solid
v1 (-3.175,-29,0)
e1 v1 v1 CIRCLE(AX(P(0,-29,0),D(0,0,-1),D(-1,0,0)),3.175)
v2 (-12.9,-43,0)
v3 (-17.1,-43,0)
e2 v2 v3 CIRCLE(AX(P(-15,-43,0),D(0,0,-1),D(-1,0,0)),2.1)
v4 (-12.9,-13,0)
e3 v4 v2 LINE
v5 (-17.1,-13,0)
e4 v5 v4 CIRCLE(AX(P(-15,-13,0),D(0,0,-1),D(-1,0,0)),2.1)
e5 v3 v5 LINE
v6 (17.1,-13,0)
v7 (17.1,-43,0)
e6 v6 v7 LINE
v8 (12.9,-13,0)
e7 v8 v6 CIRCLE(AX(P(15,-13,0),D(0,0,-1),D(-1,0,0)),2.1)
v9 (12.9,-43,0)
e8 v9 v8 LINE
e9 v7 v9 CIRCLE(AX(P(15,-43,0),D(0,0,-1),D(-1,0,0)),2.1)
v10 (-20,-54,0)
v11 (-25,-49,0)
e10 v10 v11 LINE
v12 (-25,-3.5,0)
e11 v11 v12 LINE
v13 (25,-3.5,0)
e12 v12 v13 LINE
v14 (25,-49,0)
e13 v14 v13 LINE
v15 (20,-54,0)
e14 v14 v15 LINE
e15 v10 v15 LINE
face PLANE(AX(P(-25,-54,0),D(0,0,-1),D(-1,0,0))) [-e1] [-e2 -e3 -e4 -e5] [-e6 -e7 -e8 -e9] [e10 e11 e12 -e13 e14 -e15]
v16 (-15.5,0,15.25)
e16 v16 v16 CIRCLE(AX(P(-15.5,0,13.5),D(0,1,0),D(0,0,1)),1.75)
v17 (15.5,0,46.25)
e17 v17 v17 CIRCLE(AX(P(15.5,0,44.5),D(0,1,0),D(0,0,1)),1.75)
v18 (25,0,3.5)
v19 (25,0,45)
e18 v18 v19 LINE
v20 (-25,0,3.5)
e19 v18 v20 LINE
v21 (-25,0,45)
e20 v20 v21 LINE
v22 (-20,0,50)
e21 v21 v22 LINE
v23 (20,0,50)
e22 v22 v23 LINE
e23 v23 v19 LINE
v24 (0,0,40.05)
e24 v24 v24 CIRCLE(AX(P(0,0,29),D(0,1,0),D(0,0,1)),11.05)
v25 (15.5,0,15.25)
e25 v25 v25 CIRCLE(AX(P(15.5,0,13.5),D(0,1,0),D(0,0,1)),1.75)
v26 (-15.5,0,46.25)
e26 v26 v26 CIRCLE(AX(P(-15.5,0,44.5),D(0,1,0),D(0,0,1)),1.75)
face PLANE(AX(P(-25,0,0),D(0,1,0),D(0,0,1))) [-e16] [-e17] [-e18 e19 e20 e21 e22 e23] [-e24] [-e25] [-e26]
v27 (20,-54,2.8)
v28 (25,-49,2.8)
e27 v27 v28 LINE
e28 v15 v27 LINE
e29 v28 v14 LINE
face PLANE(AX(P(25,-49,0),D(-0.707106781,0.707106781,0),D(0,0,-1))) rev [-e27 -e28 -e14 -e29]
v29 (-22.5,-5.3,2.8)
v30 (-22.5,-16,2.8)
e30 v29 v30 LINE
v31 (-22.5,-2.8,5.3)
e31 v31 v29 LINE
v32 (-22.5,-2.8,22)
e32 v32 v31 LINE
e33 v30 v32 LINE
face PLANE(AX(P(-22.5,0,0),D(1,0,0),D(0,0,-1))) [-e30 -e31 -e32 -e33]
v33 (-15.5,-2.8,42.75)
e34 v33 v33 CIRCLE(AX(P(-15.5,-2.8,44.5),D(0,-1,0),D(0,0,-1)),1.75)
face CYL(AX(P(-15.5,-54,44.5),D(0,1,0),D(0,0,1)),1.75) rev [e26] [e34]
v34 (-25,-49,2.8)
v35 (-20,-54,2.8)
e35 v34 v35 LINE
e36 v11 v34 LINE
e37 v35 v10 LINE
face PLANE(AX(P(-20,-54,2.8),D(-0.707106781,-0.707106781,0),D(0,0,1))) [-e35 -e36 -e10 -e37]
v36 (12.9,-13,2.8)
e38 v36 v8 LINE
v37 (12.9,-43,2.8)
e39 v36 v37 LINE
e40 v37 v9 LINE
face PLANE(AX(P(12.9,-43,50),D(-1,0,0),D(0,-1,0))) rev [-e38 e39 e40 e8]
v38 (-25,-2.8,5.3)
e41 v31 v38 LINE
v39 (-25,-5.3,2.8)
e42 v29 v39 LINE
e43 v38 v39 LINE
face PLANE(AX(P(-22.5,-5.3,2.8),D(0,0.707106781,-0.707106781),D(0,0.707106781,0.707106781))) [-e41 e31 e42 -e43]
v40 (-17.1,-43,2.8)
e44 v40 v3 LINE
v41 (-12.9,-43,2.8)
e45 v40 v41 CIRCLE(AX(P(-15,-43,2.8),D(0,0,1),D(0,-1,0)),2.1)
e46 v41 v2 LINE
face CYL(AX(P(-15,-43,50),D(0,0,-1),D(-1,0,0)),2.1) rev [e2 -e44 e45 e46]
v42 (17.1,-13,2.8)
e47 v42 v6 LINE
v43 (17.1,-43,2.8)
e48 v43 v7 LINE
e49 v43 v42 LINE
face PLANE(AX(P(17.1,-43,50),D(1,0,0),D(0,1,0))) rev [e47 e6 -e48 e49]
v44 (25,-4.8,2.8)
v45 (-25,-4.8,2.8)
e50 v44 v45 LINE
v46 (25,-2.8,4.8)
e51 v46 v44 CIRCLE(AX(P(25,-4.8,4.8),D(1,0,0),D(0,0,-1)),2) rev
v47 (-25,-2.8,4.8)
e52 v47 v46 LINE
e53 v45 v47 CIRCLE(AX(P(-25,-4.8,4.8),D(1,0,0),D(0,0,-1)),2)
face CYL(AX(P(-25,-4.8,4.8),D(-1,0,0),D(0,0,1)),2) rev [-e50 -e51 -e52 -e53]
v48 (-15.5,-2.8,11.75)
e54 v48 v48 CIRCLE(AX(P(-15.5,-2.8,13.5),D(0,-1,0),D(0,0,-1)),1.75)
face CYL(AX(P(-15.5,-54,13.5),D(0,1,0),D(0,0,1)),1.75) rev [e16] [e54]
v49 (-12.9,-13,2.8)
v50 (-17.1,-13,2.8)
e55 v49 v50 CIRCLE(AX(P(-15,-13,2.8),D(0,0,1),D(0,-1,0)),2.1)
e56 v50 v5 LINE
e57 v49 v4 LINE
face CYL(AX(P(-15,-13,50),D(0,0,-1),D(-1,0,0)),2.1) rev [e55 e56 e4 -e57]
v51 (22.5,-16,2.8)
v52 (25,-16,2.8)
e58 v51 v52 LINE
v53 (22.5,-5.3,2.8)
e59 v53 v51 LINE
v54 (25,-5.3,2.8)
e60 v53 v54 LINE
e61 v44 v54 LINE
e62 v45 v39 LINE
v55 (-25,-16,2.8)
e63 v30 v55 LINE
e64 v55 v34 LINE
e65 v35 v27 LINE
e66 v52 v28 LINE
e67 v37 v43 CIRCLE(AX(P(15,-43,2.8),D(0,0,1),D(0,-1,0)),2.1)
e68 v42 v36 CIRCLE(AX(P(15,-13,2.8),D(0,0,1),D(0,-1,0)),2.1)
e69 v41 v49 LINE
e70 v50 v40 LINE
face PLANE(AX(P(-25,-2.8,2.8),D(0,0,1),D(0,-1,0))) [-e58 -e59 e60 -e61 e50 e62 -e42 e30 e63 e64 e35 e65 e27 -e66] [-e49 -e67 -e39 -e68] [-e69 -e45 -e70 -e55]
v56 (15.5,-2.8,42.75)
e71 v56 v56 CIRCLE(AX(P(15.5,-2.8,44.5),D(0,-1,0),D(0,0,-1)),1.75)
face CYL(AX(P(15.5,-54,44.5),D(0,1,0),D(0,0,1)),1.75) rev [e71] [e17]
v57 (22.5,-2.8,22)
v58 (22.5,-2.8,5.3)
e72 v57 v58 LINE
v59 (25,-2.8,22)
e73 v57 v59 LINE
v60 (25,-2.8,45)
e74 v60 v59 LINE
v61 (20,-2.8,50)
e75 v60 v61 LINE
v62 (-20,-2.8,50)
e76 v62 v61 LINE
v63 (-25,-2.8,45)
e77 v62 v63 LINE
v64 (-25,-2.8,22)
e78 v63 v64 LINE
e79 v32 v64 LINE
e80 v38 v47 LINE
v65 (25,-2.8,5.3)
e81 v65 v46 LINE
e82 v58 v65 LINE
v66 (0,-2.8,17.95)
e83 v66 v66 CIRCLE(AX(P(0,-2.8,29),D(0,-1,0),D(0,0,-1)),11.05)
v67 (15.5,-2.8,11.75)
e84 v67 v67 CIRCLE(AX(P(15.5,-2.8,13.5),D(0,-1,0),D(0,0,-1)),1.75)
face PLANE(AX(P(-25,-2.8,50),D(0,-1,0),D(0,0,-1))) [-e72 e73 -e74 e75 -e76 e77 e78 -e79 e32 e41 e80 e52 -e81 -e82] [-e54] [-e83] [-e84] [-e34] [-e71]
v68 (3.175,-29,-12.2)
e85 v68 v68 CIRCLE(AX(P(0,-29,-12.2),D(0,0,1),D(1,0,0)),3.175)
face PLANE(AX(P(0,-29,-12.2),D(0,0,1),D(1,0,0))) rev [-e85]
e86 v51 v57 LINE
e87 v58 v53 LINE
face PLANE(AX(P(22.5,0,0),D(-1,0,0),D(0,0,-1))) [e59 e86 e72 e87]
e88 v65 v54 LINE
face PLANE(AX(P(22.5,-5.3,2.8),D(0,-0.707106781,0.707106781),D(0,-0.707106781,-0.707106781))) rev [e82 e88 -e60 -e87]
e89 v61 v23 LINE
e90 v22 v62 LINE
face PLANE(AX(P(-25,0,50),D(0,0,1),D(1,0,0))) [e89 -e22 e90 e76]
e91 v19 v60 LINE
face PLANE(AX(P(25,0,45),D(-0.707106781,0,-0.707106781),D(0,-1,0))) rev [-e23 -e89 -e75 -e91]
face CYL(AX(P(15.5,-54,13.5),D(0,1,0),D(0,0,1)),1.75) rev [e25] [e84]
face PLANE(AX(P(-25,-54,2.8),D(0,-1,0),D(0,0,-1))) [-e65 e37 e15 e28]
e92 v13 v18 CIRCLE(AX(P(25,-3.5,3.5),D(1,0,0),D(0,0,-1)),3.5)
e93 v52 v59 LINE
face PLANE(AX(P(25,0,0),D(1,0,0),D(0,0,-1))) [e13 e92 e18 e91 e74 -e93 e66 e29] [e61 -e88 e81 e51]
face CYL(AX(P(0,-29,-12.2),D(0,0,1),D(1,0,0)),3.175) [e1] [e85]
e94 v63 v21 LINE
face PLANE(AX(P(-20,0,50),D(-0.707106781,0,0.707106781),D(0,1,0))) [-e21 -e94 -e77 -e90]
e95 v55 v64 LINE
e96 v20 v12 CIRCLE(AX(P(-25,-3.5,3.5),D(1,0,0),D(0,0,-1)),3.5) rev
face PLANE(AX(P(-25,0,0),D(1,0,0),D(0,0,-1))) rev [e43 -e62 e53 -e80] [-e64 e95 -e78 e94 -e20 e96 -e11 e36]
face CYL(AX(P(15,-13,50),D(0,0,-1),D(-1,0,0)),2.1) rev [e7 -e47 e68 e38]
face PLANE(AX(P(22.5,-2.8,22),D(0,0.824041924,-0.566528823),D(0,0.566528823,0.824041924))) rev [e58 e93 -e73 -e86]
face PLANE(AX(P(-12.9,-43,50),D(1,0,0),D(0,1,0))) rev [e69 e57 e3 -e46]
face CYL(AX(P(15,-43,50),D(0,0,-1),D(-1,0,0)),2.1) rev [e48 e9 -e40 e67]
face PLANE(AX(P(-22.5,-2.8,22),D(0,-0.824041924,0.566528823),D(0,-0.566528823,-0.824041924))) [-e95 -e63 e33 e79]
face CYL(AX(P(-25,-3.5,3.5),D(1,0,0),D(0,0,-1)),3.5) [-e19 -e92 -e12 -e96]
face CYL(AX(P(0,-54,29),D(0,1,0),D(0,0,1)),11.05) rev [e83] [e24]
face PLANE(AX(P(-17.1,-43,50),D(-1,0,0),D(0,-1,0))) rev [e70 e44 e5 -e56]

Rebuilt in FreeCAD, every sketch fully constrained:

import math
import FreeCAD as App
import Part
import Sketcher
from FreeCAD import Vector
Q = App.Units.Quantity


def edges_at(feature, points):
    """Names of the edges that pass closest to the given points."""
    edges = feature.Shape.Edges
    near = lambda p: min(range(len(edges)), key=lambda i: edges[i].distToShape(Part.Vertex(*p))[0])
    return sorted({f"Edge{near(p) + 1}" for p in points})

doc = App.newDocument("Part")
body = doc.addObject("PartDesign::Body", "Body")

# Sketch on YZ plane
sketch1 = body.newObject("Sketcher::SketchObject", "Sketch")
sketch1.AttachmentSupport = (doc.getObject("YZ_Plane"), [""])
sketch1.MapMode = "FlatFace"
sketch1.addGeometry(Part.LineSegment(Vector(0, 50, 0), Vector(-2.8, 50, 0)), False)
sketch1.addGeometry(Part.LineSegment(Vector(-2.8, 50, 0), Vector(-2.8, 2.8, 0)), False)
sketch1.addGeometry(Part.LineSegment(Vector(-2.8, 2.8, 0), Vector(-54, 2.8, 0)), False)
sketch1.addGeometry(Part.LineSegment(Vector(-54, 2.8, 0), Vector(-54, 0, 0)), False)
sketch1.addGeometry(Part.LineSegment(Vector(-54, 0, 0), Vector(0, 0, 0)), False)
sketch1.addGeometry(Part.LineSegment(Vector(0, 0, 0), Vector(0, 50, 0)), False)
sketch1.addConstraint(Sketcher.Constraint("Coincident", 0, 2, 1, 1))
sketch1.addConstraint(Sketcher.Constraint("Coincident", 1, 2, 2, 1))
sketch1.addConstraint(Sketcher.Constraint("Coincident", 2, 2, 3, 1))
sketch1.addConstraint(Sketcher.Constraint("Coincident", 3, 2, 4, 1))
sketch1.addConstraint(Sketcher.Constraint("Coincident", 4, 2, 5, 1))
sketch1.addConstraint(Sketcher.Constraint("Coincident", 5, 2, 0, 1))
sketch1.addConstraint(Sketcher.Constraint("Horizontal", 0))
sketch1.addConstraint(Sketcher.Constraint("Vertical", 1))
sketch1.addConstraint(Sketcher.Constraint("Horizontal", 2))
sketch1.addConstraint(Sketcher.Constraint("Vertical", 3))
sketch1.addConstraint(Sketcher.Constraint("Horizontal", 4))
sketch1.addConstraint(Sketcher.Constraint("Vertical", 5))
sketch1.addConstraint(Sketcher.Constraint("Coincident", 4, 2, -1, 1))
sketch1.addConstraint(Sketcher.Constraint("Equal", 0, 3))
sketch1.addConstraint(Sketcher.Constraint("DistanceX", 4, 1, 4, 2, 54.0))
sketch1.addConstraint(Sketcher.Constraint("DistanceY", 5, 1, 5, 2, 50.0))
sketch1.addConstraint(Sketcher.Constraint("DistanceX", 0, 2, 0, 1, 2.8))
pad1 = body.newObject("PartDesign::Pad", "Pad")
pad1.Profile = sketch1
pad1.Type = "TwoLengths"
pad1.Length = 25
pad1.Length2 = 25

# Sketch on XZ plane
sketch2 = body.newObject("Sketcher::SketchObject", "Sketch001")
sketch2.AttachmentSupport = (doc.getObject("XZ_Plane"), [""])
sketch2.MapMode = "FlatFace"
sketch2.addGeometry(Part.Circle(Vector(0, 29, 0), Vector(0, 0, 1), 11.05), False)
sketch2.addGeometry(Part.Circle(Vector(-15.5, 13.5, 0), Vector(0, 0, 1), 1.75), False)
sketch2.addGeometry(Part.Circle(Vector(15.5, 13.5, 0), Vector(0, 0, 1), 1.75), False)
sketch2.addGeometry(Part.Circle(Vector(15.5, 44.5, 0), Vector(0, 0, 1), 1.75), False)
sketch2.addGeometry(Part.Circle(Vector(-15.5, 44.5, 0), Vector(0, 0, 1), 1.75), False)
sketch2.addConstraint(Sketcher.Constraint("Equal", 1, 2))
sketch2.addConstraint(Sketcher.Constraint("Equal", 2, 3))
sketch2.addConstraint(Sketcher.Constraint("Equal", 3, 4))
sketch2.addConstraint(Sketcher.Constraint("Symmetric", 1, 3, 2, 3, -2))
sketch2.addConstraint(Sketcher.Constraint("Symmetric", 3, 3, 4, 3, -2))
sketch2.addConstraint(Sketcher.Constraint("PointOnObject", 0, 3, -2))
sketch2.addConstraint(Sketcher.Constraint("Vertical", 2, 3, 3, 3))
sketch2.addConstraint(Sketcher.Constraint("Diameter", 0, 22.1))
sketch2.addConstraint(Sketcher.Constraint("Diameter", 1, 3.5))
sketch2.addConstraint(Sketcher.Constraint("DistanceY", -1, 1, 0, 3, 29.0))
sketch2.addConstraint(Sketcher.Constraint("DistanceX", 1, 3, 2, 3, 31.0))
sketch2.addConstraint(Sketcher.Constraint("DistanceY", 2, 3, 3, 3, 31.0))
sketch2.addConstraint(Sketcher.Constraint("DistanceY", -1, 1, 1, 3, 13.5))
pocket1 = body.newObject("PartDesign::Pocket", "Pocket")
pocket1.Profile = sketch2
pocket1.Type = "ThroughAll"
pocket1.Reversed = True

# Sketch on XY plane
sketch3 = body.newObject("Sketcher::SketchObject", "Sketch002")
sketch3.AttachmentSupport = (doc.getObject("XY_Plane"), [""])
sketch3.MapMode = "FlatFace"
sketch3.addGeometry(Part.LineSegment(Vector(17.1, -13, 0), Vector(17.1, -43, 0)), False)
sketch3.addGeometry(Part.ArcOfCircle(Part.Circle(Vector(15, -43, 0), Vector(0, 0, 1), 2.1), math.radians(180), math.radians(360)), False)
sketch3.addGeometry(Part.LineSegment(Vector(12.9, -43, 0), Vector(12.9, -13, 0)), False)
sketch3.addGeometry(Part.ArcOfCircle(Part.Circle(Vector(15, -13, 0), Vector(0, 0, 1), 2.1), math.radians(0), math.radians(180)), False)
sketch3.addGeometry(Part.LineSegment(Vector(-12.9, -13, 0), Vector(-12.9, -43, 0)), False)
sketch3.addGeometry(Part.ArcOfCircle(Part.Circle(Vector(-15, -43, 0), Vector(0, 0, 1), 2.1), math.radians(180), math.radians(360)), False)
sketch3.addGeometry(Part.LineSegment(Vector(-17.1, -43, 0), Vector(-17.1, -13, 0)), False)
sketch3.addGeometry(Part.ArcOfCircle(Part.Circle(Vector(-15, -13, 0), Vector(0, 0, 1), 2.1), math.radians(0), math.radians(180)), False)
sketch3.addConstraint(Sketcher.Constraint("Tangent", 0, 2, 1, 2))
sketch3.addConstraint(Sketcher.Constraint("Tangent", 1, 1, 2, 1))
sketch3.addConstraint(Sketcher.Constraint("Tangent", 2, 2, 3, 2))
sketch3.addConstraint(Sketcher.Constraint("Tangent", 3, 1, 0, 1))
sketch3.addConstraint(Sketcher.Constraint("Tangent", 4, 2, 5, 2))
sketch3.addConstraint(Sketcher.Constraint("Tangent", 5, 1, 6, 1))
sketch3.addConstraint(Sketcher.Constraint("Tangent", 6, 2, 7, 2))
sketch3.addConstraint(Sketcher.Constraint("Tangent", 7, 1, 4, 1))
sketch3.addConstraint(Sketcher.Constraint("Vertical", 0))
sketch3.addConstraint(Sketcher.Constraint("Vertical", 2))
sketch3.addConstraint(Sketcher.Constraint("Vertical", 4))
sketch3.addConstraint(Sketcher.Constraint("Vertical", 6))
sketch3.addConstraint(Sketcher.Constraint("Equal", 3, 5))
sketch3.addConstraint(Sketcher.Constraint("Symmetric", 1, 3, 5, 3, -2))
sketch3.addConstraint(Sketcher.Constraint("Horizontal", 3, 3, 7, 3))
sketch3.addConstraint(Sketcher.Constraint("Radius", 1, 2.1))
sketch3.addConstraint(Sketcher.Constraint("DistanceY", 0, 2, 0, 1, 30.0))
sketch3.addConstraint(Sketcher.Constraint("DistanceX", -1, 1, 1, 3, 15.0))
sketch3.addConstraint(Sketcher.Constraint("DistanceY", 1, 3, -1, 1, 43.0))
pocket2 = body.newObject("PartDesign::Pocket", "Pocket001")
pocket2.Profile = sketch3
pocket2.Type = "ThroughAll"
pocket2.Reversed = True
doc.recompute()

chamfer = body.newObject("PartDesign::Chamfer", "Chamfer")
chamfer.Base = (pocket2, edges_at(pocket2, [
    (25, -1.4, 50),
    (25, -54, 1.4),
    (-25, -54, 1.4),
    (-25, -1.4, 50),
]))
chamfer.Size = 5
doc.recompute()

fillet = body.newObject("PartDesign::Fillet", "Fillet")
fillet.Base = (chamfer, edges_at(chamfer, [(0, -2.8, 2.8)]))
fillet.Radius = 2
doc.recompute()

fillet2 = body.newObject("PartDesign::Fillet", "Fillet001")
fillet2.Base = (fillet, edges_at(fillet, [(0, 0, 0)]))
fillet2.Radius = 3.5

# Sketch on YZ plane
sketch4 = body.newObject("Sketcher::SketchObject", "Sketch003")
sketch4.AttachmentSupport = (doc.getObject("YZ_Plane"), [""])
sketch4.MapMode = "FlatFace"
sketch4.AttachmentOffset = App.Placement(Vector(0, 0, -25), App.Rotation())
sketch4.addGeometry(Part.LineSegment(Vector(-2.8, 5.3, 0), Vector(-5.3, 2.8, 0)), False)
sketch4.addGeometry(Part.LineSegment(Vector(-5.3, 2.8, 0), Vector(-16, 2.8, 0)), False)
sketch4.addGeometry(Part.LineSegment(Vector(-16, 2.8, 0), Vector(-2.8, 22, 0)), False)
sketch4.addGeometry(Part.LineSegment(Vector(-2.8, 22, 0), Vector(-2.8, 5.3, 0)), False)
sketch4.addConstraint(Sketcher.Constraint("Coincident", 0, 2, 1, 1))
sketch4.addConstraint(Sketcher.Constraint("Coincident", 1, 2, 2, 1))
sketch4.addConstraint(Sketcher.Constraint("Coincident", 2, 2, 3, 1))
sketch4.addConstraint(Sketcher.Constraint("Coincident", 3, 2, 0, 1))
sketch4.addConstraint(Sketcher.Constraint("Horizontal", 1))
sketch4.addConstraint(Sketcher.Constraint("Vertical", 3))
sketch4.addConstraint(Sketcher.Constraint("Angle", 0, Q("-135 deg")))
sketch4.addConstraint(Sketcher.Constraint("DistanceX", 1, 2, 1, 1, 10.7))
sketch4.addConstraint(Sketcher.Constraint("DistanceY", 3, 2, 3, 1, 16.7))
sketch4.addConstraint(Sketcher.Constraint("DistanceX", 1, 2, -1, 1, 16.0))
sketch4.addConstraint(Sketcher.Constraint("DistanceY", -1, 1, 2, 2, 22.0))
sketch4.addConstraint(Sketcher.Constraint("DistanceY", -1, 1, 0, 2, 2.8))
pad2 = body.newObject("PartDesign::Pad", "Pad001")
pad2.Profile = sketch4
pad2.Length = 2.5
doc.recompute()

mirrored = body.newObject("PartDesign::Mirrored", "Mirrored")
mirrored.Originals = [pad2]
mirrored.MirrorPlane = (doc.getObject("YZ_Plane"), [""])
body.Tip = mirrored

# Sketch on XY plane
sketch5 = body.newObject("Sketcher::SketchObject", "Sketch004")
sketch5.AttachmentSupport = (doc.getObject("XY_Plane"), [""])
sketch5.MapMode = "FlatFace"
sketch5.AttachmentOffset = App.Placement(Vector(0, 0, 2.8), App.Rotation())
sketch5.addGeometry(Part.Circle(Vector(0, -29, 0), Vector(0, 0, 1), 3.175), False)
sketch5.addConstraint(Sketcher.Constraint("PointOnObject", 0, 3, -2))
sketch5.addConstraint(Sketcher.Constraint("Diameter", 0, 6.35))
sketch5.addConstraint(Sketcher.Constraint("DistanceY", 0, 3, -1, 1, 29.0))
pad3 = body.newObject("PartDesign::Pad", "Pad002")
pad3.Profile = sketch5
pad3.Length = 15
pad3.Reversed = True

doc.recompute()
